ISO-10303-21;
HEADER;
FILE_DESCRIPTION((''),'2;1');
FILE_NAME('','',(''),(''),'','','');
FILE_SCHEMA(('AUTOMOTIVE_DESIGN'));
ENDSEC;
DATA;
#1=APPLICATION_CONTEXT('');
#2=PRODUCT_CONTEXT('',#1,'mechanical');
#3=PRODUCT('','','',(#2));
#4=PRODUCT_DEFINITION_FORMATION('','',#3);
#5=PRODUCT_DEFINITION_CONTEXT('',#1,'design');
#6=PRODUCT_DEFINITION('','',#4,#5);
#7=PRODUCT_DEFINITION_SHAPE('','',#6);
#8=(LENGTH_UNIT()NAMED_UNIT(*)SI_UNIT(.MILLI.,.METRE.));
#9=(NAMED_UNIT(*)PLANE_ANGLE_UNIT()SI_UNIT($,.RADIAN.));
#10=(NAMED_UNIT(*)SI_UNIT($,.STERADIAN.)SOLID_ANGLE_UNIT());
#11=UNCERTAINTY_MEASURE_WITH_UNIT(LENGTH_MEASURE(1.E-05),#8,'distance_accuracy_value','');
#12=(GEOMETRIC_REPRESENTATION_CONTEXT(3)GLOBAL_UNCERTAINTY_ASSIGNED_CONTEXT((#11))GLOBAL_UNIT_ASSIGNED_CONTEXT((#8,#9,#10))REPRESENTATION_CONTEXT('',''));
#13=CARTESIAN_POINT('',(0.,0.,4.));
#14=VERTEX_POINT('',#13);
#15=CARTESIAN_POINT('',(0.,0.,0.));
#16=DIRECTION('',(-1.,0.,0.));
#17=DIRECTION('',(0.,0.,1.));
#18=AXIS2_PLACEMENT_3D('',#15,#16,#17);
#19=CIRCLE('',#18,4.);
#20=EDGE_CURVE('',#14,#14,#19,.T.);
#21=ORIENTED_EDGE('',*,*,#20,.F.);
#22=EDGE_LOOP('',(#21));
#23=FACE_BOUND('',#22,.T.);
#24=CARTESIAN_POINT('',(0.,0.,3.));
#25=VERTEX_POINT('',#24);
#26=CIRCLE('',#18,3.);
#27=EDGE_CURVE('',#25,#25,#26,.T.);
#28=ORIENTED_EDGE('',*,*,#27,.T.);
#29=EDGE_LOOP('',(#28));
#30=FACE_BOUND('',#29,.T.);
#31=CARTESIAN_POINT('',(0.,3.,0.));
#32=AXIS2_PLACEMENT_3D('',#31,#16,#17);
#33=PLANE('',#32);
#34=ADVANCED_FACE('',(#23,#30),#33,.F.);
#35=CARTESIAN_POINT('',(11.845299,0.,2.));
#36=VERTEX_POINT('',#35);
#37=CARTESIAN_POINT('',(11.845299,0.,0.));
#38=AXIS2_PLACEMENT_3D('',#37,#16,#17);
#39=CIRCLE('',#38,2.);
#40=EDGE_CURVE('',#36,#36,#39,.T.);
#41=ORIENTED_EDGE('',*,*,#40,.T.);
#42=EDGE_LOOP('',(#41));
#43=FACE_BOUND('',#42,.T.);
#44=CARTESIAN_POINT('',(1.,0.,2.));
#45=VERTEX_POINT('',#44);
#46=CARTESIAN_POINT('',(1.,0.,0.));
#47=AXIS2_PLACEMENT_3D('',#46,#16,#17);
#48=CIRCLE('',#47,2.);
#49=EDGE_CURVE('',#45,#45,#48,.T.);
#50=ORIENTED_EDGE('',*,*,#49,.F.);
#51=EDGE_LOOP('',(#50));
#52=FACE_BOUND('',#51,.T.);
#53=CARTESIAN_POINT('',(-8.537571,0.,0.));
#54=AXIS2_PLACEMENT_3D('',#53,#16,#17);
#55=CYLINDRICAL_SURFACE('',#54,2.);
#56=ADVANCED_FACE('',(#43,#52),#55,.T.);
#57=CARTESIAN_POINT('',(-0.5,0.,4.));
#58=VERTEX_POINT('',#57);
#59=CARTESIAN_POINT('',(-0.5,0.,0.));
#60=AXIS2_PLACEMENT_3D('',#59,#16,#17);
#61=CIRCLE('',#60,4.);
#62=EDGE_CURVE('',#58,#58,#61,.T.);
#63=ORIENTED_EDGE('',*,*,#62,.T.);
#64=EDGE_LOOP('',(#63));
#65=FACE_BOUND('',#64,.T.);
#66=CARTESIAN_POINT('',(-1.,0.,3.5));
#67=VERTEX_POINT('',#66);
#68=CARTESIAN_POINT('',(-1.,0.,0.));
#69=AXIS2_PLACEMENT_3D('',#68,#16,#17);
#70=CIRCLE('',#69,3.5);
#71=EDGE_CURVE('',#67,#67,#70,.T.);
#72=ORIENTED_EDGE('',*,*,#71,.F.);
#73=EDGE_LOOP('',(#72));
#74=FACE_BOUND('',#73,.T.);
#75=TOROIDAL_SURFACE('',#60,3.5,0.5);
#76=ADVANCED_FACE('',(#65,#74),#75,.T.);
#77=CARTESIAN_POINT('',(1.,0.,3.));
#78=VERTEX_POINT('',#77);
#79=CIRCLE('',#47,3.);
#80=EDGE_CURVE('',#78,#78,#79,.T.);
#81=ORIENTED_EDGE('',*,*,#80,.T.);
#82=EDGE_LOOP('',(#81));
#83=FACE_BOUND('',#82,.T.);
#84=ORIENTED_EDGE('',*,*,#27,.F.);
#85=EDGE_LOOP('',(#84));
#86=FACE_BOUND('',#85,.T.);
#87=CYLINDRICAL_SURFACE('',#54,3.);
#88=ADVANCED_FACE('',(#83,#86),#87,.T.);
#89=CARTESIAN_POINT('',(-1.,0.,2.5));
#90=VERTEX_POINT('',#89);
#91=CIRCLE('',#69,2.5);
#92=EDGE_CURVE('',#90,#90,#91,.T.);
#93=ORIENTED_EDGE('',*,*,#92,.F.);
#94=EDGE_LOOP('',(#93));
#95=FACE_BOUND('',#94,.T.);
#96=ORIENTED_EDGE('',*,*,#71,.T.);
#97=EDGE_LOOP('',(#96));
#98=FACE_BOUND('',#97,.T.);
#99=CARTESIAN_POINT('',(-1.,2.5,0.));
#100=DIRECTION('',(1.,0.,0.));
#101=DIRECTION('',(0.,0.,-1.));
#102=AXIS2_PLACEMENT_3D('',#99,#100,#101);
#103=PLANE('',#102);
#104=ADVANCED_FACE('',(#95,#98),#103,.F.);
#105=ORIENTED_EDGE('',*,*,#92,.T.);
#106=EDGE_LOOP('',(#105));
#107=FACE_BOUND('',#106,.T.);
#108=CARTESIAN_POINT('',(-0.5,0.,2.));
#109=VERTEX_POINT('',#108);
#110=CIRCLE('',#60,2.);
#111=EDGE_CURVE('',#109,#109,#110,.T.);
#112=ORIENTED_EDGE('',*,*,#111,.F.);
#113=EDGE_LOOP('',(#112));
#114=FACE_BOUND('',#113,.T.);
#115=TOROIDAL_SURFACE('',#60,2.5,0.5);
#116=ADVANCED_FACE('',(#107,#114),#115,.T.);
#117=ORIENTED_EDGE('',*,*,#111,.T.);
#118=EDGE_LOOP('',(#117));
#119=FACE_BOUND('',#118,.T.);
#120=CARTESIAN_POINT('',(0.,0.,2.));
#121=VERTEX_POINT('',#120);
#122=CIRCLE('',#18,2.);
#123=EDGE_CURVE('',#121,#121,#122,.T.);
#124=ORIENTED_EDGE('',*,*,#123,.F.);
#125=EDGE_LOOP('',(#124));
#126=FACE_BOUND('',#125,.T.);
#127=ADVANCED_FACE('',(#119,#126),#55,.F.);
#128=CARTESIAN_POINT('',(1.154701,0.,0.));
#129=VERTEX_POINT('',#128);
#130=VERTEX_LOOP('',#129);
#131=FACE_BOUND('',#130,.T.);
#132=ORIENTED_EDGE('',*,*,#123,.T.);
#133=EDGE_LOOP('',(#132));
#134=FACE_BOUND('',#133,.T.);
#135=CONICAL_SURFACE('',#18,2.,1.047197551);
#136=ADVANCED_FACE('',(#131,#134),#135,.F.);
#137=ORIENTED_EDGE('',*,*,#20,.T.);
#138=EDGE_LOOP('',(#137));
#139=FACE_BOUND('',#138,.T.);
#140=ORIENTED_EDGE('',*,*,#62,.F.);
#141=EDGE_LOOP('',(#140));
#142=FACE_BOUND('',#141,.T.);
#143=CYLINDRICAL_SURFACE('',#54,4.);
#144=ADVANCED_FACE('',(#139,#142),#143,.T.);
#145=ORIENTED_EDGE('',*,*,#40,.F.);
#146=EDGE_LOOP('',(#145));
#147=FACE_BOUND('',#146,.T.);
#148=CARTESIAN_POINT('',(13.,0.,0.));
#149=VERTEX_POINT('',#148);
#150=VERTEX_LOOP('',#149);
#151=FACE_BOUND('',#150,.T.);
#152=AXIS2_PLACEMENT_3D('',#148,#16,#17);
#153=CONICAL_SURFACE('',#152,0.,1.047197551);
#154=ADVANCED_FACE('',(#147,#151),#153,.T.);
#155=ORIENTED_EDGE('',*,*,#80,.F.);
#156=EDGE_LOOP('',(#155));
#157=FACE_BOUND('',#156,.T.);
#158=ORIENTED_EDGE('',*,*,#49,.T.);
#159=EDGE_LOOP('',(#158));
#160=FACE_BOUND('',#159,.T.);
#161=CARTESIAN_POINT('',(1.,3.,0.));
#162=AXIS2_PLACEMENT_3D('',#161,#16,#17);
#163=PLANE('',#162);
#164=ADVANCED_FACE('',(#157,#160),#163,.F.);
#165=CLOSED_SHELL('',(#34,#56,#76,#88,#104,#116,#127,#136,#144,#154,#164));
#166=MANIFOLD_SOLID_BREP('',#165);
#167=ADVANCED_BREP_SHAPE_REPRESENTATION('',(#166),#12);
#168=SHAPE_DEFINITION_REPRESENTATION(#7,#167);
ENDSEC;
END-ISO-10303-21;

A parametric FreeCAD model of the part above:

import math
import FreeCAD as App
import Part
import Sketcher
Q = App.Units.Quantity

doc = App.newDocument("Part")
params = doc.addObject("Spreadsheet::Sheet", "Params")
for row, (alias, value) in enumerate([
    ("sketch1_radius", "0.5 mm"),
    ("sketch1_width", "0.5 mm"),
    ("revolution_angle", "360 deg"),
], start=1):
    params.set(f"A{row}", alias)
    params.set(f"B{row}", "=" + value)
    params.setAlias(f"B{row}", alias)

body = doc.addObject("PartDesign::Body", "Body")

# Sketch on XY plane
sketch1 = doc.addObject("Sketcher::SketchObject", "Sketch")
body.addObject(sketch1)
sketch1.AttachmentSupport = (doc.XY_Plane, [""])
sketch1.MapMode = "FlatFace"
sketch1.addGeometry([
    Part.LineSegment(App.Vector(1, 3, 0), App.Vector(0, 3, 0)),  # 0
    Part.LineSegment(App.Vector(0, 3, 0), App.Vector(0, 4, 0)),  # 1
    Part.LineSegment(App.Vector(0, 4, 0), App.Vector(-0.5, 4, 0)),  # 2
    Part.ArcOfCircle(Part.Circle(App.Vector(-0.5, 3.5, 0), App.Vector(0, 0, 1), 0.5), math.radians(90), math.radians(180)),  # 3
    Part.LineSegment(App.Vector(-1, 3.5, 0), App.Vector(-1, 2.5, 0)),  # 4
    Part.ArcOfCircle(Part.Circle(App.Vector(-0.5, 2.5, 0), App.Vector(0, 0, 1), 0.5), math.radians(180), math.radians(270)),  # 5
    Part.LineSegment(App.Vector(-0.5, 2, 0), App.Vector(0, 2, 0)),  # 6
    Part.LineSegment(App.Vector(0, 2, 0), App.Vector(1.154701, 0, 0)),  # 7
    Part.LineSegment(App.Vector(1.154701, 0, 0), App.Vector(13, 0, 0)),  # 8
    Part.LineSegment(App.Vector(13, 0, 0), App.Vector(11.845299, 2, 0)),  # 9
    Part.LineSegment(App.Vector(11.845299, 2, 0), App.Vector(1, 2, 0)),  # 10
    Part.LineSegment(App.Vector(1, 2, 0), App.Vector(1, 3, 0)),  # 11
], False)
sketch1.addConstraint([
    Sketcher.Constraint("Coincident", 0, 2, 1, 1),
    Sketcher.Constraint("Coincident", 1, 2, 2, 1),
    Sketcher.Constraint("Tangent", 2, 2, 3, 1),
    Sketcher.Constraint("Tangent", 3, 2, 4, 1),
    Sketcher.Constraint("Tangent", 4, 2, 5, 1),
    Sketcher.Constraint("Tangent", 5, 2, 6, 1),
    Sketcher.Constraint("Coincident", 6, 2, 7, 1),
    Sketcher.Constraint("Coincident", 7, 2, 8, 1),
    Sketcher.Constraint("Coincident", 8, 2, 9, 1),
    Sketcher.Constraint("Coincident", 9, 2, 10, 1),
    Sketcher.Constraint("Coincident", 10, 2, 11, 1),
    Sketcher.Constraint("Coincident", 11, 2, 0, 1),
    Sketcher.Constraint("Horizontal", 0),
    Sketcher.Constraint("Vertical", 1),
    Sketcher.Constraint("Horizontal", 2),
    Sketcher.Constraint("Vertical", 4),
    Sketcher.Constraint("Horizontal", 6),
    Sketcher.Constraint("Horizontal", 8),
    Sketcher.Constraint("Horizontal", 10),
    Sketcher.Constraint("Vertical", 11),
    Sketcher.Constraint("Equal", 3, 5),
    Sketcher.Constraint("PointOnObject", 0, 2, -2),
    Sketcher.Constraint("PointOnObject", 6, 2, -2),
    Sketcher.Constraint("PointOnObject", 7, 2, -1),
    Sketcher.Constraint("Parallel", 7, 9),
    Sketcher.Constraint("Horizontal", 6, 2, 9, 2),
    Sketcher.Constraint("Equal", 0, 1),
    Sketcher.Constraint("Equal", 1, 4),
    Sketcher.Constraint("Equal", 4, 11),
    Sketcher.Constraint("Radius", 3, 0.5),
    Sketcher.Constraint("Angle", 7, Q("-60 deg")),
    Sketcher.Constraint("DistanceX", 2, 2, 2, 1, 0.5),
    Sketcher.Constraint("DistanceY", -1, 1, 0, 2, 3.0),
    Sketcher.Constraint("DistanceX", -1, 1, 8, 2, 13.0),
])
sketch1.setExpression("Constraints[29]", "Params.sketch1_radius")
sketch1.setExpression("Constraints[31]", "Params.sketch1_width")
revolution = doc.addObject("PartDesign::Revolution", "Revolution")
body.addObject(revolution)
revolution.Profile = sketch1
revolution.ReferenceAxis = (sketch1, ["H_Axis"])
revolution.setExpression("Angle", "Params.revolution_angle")

doc.recompute()
